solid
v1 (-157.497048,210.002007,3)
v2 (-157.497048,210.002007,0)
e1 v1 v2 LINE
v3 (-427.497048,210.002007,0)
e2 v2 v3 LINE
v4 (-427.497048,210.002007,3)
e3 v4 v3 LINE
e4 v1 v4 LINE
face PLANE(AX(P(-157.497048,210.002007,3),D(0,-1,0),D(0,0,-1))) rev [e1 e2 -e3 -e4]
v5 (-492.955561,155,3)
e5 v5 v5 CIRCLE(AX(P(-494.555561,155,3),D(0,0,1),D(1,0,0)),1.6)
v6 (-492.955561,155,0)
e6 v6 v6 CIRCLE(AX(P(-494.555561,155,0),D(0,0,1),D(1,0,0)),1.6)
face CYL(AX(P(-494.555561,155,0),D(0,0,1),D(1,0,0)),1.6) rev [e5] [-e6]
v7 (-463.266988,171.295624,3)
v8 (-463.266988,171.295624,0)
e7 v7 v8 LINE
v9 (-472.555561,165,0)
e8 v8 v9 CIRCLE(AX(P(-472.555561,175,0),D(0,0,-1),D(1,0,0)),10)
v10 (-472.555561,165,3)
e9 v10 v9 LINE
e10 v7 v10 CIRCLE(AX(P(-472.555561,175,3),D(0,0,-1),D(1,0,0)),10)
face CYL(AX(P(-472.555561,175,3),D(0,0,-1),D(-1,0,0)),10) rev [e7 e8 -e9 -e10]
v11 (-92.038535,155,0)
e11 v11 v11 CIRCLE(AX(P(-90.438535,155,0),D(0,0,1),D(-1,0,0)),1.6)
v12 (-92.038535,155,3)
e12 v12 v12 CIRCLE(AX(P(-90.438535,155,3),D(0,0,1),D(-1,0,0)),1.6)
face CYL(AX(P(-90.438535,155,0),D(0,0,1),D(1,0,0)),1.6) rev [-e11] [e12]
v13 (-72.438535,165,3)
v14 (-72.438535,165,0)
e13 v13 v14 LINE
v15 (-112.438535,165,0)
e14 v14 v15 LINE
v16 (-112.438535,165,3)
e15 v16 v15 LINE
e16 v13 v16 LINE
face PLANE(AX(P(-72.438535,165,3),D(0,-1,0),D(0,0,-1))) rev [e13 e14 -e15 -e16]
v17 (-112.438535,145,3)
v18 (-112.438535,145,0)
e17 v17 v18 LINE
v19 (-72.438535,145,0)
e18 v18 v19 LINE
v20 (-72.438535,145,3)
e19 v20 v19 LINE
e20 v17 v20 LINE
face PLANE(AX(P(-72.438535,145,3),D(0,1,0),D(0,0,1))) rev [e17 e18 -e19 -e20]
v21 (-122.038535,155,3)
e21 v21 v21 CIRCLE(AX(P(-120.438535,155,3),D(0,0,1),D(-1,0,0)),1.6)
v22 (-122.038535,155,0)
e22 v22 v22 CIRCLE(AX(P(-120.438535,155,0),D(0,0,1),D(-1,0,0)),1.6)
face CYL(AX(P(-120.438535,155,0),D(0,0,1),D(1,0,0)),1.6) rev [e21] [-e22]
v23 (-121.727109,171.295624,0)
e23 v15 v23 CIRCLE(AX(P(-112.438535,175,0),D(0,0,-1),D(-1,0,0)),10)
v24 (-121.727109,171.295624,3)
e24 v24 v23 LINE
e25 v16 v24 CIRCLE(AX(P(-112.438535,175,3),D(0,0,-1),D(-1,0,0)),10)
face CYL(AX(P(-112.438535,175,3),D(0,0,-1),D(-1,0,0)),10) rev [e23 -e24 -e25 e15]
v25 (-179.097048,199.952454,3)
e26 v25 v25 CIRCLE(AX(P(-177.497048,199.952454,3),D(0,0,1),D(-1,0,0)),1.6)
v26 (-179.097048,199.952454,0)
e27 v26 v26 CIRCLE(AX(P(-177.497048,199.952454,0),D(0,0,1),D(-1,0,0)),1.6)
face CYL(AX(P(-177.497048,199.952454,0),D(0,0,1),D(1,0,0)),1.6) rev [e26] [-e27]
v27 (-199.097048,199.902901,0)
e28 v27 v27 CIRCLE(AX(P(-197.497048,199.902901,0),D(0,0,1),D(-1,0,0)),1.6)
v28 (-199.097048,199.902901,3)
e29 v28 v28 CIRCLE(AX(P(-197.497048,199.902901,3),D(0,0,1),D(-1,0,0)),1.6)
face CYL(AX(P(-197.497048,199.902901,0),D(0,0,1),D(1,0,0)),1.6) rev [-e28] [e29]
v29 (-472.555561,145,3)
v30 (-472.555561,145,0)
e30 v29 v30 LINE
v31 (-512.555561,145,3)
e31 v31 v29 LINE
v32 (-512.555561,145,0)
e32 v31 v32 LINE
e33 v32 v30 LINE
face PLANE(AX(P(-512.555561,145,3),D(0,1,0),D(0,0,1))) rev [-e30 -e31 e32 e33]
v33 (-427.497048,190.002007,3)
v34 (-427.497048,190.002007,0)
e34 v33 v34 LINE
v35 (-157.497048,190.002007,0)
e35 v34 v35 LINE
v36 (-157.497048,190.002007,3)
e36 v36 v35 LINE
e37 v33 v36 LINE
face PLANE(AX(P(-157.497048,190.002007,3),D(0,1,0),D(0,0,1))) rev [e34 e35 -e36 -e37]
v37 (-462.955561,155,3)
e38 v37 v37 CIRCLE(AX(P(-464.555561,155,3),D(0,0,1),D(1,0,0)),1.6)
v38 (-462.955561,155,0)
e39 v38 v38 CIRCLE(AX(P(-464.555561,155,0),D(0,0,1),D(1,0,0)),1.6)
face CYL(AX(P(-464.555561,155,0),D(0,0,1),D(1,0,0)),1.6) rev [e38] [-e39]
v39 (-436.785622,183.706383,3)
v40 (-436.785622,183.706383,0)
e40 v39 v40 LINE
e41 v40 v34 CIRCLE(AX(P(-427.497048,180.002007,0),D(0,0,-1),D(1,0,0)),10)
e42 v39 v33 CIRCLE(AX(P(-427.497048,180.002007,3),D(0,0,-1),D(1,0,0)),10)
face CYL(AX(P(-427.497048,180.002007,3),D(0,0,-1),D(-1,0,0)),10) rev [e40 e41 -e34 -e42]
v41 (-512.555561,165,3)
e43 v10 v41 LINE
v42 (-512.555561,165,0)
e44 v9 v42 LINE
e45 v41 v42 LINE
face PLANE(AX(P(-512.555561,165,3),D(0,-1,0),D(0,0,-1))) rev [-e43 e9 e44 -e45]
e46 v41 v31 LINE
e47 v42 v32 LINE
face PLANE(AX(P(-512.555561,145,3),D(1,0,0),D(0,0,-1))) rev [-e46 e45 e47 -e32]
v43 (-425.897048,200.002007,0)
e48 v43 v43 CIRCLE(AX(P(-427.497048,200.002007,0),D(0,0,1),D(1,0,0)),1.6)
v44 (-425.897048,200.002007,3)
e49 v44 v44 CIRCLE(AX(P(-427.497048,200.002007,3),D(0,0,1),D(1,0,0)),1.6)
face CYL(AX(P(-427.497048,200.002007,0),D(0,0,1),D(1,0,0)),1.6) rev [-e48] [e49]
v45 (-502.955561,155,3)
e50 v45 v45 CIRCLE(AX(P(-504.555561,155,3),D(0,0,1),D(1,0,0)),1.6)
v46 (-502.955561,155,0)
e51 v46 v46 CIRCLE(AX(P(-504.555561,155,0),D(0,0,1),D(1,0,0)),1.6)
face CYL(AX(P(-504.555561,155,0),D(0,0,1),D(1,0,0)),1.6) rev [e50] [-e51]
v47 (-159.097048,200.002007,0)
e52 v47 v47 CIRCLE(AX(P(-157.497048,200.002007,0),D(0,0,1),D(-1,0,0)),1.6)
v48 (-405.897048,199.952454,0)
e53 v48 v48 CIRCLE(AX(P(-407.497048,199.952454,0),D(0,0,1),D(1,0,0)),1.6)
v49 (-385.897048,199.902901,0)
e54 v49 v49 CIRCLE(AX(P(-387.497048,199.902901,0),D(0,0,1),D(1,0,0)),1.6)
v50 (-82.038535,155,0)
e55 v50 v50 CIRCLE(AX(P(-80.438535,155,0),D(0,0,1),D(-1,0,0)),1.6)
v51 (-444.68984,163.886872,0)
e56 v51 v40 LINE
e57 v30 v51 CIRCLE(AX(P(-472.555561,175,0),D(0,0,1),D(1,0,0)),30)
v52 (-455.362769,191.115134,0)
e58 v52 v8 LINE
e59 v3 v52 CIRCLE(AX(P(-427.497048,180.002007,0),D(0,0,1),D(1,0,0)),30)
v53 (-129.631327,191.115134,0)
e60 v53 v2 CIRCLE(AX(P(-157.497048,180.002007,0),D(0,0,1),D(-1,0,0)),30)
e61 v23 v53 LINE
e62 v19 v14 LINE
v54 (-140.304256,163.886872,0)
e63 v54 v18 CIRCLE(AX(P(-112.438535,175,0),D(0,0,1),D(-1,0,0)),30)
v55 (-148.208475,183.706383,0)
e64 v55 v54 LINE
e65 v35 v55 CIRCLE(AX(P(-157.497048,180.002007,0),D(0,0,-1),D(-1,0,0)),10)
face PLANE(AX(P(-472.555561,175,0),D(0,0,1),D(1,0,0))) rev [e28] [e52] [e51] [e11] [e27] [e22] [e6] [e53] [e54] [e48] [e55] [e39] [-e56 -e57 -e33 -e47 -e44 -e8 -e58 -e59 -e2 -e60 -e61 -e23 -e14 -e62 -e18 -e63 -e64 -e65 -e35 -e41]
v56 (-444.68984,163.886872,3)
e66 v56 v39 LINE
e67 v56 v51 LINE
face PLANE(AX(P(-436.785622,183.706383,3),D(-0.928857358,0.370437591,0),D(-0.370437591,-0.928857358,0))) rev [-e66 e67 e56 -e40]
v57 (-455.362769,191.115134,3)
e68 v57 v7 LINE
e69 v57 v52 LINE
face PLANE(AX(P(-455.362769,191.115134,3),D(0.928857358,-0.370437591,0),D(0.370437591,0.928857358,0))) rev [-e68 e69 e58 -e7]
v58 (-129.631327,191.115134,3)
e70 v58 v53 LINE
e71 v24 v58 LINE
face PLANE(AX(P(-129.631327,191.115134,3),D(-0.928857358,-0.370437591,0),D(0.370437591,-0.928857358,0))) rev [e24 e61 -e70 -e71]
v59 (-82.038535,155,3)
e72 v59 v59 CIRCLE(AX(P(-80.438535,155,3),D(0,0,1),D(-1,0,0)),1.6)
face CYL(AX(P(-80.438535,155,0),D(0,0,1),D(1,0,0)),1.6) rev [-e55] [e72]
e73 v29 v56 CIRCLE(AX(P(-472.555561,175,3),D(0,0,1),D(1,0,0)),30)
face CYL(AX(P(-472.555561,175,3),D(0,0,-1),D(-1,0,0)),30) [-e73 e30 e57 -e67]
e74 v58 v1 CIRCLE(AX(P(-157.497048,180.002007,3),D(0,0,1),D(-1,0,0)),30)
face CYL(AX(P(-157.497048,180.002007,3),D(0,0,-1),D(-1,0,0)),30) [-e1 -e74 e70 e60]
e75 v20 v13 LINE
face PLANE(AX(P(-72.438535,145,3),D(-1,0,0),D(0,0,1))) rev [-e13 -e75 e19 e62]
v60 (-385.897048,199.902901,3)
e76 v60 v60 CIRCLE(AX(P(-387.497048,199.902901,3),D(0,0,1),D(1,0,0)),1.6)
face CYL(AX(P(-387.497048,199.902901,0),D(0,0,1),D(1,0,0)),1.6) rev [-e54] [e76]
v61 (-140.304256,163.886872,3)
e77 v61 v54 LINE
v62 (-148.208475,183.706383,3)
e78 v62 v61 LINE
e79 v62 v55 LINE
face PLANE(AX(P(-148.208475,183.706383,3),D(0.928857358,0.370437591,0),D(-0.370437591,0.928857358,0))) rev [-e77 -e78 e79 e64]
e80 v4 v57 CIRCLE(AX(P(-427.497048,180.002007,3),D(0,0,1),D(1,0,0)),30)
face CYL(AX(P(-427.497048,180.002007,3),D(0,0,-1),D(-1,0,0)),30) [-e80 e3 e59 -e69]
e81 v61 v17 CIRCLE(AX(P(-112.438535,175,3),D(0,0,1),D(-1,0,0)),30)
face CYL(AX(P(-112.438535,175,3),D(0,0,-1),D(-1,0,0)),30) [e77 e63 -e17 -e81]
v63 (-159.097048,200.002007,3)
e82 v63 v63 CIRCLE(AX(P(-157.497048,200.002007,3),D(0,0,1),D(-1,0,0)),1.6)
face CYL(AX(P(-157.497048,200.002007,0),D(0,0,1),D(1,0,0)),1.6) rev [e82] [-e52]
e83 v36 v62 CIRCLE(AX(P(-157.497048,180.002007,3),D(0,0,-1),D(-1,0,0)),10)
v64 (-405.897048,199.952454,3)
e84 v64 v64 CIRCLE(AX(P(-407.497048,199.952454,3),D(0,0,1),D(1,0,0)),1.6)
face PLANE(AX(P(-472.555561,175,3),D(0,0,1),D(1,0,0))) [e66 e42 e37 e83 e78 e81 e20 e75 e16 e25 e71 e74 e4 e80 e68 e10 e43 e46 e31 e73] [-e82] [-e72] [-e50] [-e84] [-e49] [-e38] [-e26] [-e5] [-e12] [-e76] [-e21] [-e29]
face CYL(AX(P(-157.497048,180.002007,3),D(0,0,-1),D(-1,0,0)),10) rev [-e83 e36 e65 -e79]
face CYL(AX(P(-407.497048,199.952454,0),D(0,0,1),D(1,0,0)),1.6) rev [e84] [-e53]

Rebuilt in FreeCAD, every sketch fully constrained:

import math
import FreeCAD as App
import Part
import Sketcher

doc = App.newDocument("Part")
body = doc.addObject("PartDesign::Body", "Body")

# Sketch on XY plane
sketch1 = body.newObject("Sketcher::SketchObject", "Sketch")
sketch1.AttachmentSupport = (doc.getObject("XY_Plane"), [""])
sketch1.MapMode = "FlatFace"
sketch1.addGeometry([
    Part.LineSegment(App.Vector(-513, 145, 0), App.Vector(-473, 145, 0)),  # 0
    Part.ArcOfCircle(Part.Circle(App.Vector(-473, 175, 0), App.Vector(0, 0, 1), 30), math.radians(-90), math.radians(-22)),  # 1
    Part.LineSegment(App.Vector(-445, 164, 0), App.Vector(-437, 184, 0)),  # 2
    Part.ArcOfCircle(Part.Circle(App.Vector(-427, 180, 0), App.Vector(0, 0, 1), 10), math.radians(90), math.radians(158)),  # 3
    Part.LineSegment(App.Vector(-427, 190, 0), App.Vector(-157, 190, 0)),  # 4
    Part.ArcOfCircle(Part.Circle(App.Vector(-157, 180, 0), App.Vector(0, 0, 1), 10), math.radians(22), math.radians(90)),  # 5
    Part.LineSegment(App.Vector(-148, 184, 0), App.Vector(-140, 164, 0)),  # 6
    Part.ArcOfCircle(Part.Circle(App.Vector(-112, 175, 0), App.Vector(0, 0, 1), 30), math.radians(-158), math.radians(-90)),  # 7
    Part.LineSegment(App.Vector(-112, 145, 0), App.Vector(-72, 145, 0)),  # 8
    Part.LineSegment(App.Vector(-72, 145, 0), App.Vector(-72, 165, 0)),  # 9
    Part.LineSegment(App.Vector(-72, 165, 0), App.Vector(-112, 165, 0)),  # 10
    Part.ArcOfCircle(Part.Circle(App.Vector(-112, 175, 0), App.Vector(0, 0, 1), 10), math.radians(-158), math.radians(-90)),  # 11
    Part.LineSegment(App.Vector(-122, 171, 0), App.Vector(-130, 191, 0)),  # 12
    Part.ArcOfCircle(Part.Circle(App.Vector(-157, 180, 0), App.Vector(0, 0, 1), 30), math.radians(22), math.radians(90)),  # 13
    Part.LineSegment(App.Vector(-157, 210, 0), App.Vector(-427, 210, 0)),  # 14
    Part.ArcOfCircle(Part.Circle(App.Vector(-427, 180, 0), App.Vector(0, 0, 1), 30), math.radians(90), math.radians(158)),  # 15
    Part.LineSegment(App.Vector(-455, 191, 0), App.Vector(-463, 171, 0)),  # 16
    Part.ArcOfCircle(Part.Circle(App.Vector(-473, 175, 0), App.Vector(0, 0, 1), 10), math.radians(-90), math.radians(-22)),  # 17
    Part.LineSegment(App.Vector(-473, 165, 0), App.Vector(-513, 165, 0)),  # 18
    Part.LineSegment(App.Vector(-513, 165, 0), App.Vector(-513, 145, 0)),  # 19
], False)
sketch1.addConstraint([
    Sketcher.Constraint("Tangent", 0, 2, 1, 1),
    Sketcher.Constraint("Tangent", 1, 2, 2, 1),
    Sketcher.Constraint("Tangent", 2, 2, 3, 2),
    Sketcher.Constraint("Tangent", 3, 1, 4, 1),
    Sketcher.Constraint("Tangent", 4, 2, 5, 2),
    Sketcher.Constraint("Tangent", 5, 1, 6, 1),
    Sketcher.Constraint("Tangent", 6, 2, 7, 1),
    Sketcher.Constraint("Tangent", 7, 2, 8, 1),
    Sketcher.Constraint("Coincident", 8, 2, 9, 1),
    Sketcher.Constraint("Coincident", 9, 2, 10, 1),
    Sketcher.Constraint("Tangent", 10, 2, 11, 2),
    Sketcher.Constraint("Tangent", 11, 1, 12, 1),
    Sketcher.Constraint("Tangent", 12, 2, 13, 1),
    Sketcher.Constraint("Tangent", 13, 2, 14, 1),
    Sketcher.Constraint("Tangent", 14, 2, 15, 1),
    Sketcher.Constraint("Tangent", 15, 2, 16, 1),
    Sketcher.Constraint("Tangent", 16, 2, 17, 2),
    Sketcher.Constraint("Tangent", 17, 1, 18, 1),
    Sketcher.Constraint("Coincident", 18, 2, 19, 1),
    Sketcher.Constraint("Coincident", 19, 2, 0, 1),
    Sketcher.Constraint("Horizontal", 0),
    Sketcher.Constraint("Horizontal", 4),
    Sketcher.Constraint("Horizontal", 8),
    Sketcher.Constraint("Vertical", 9),
    Sketcher.Constraint("Horizontal", 10),
    Sketcher.Constraint("Horizontal", 14),
    Sketcher.Constraint("Horizontal", 18),
    Sketcher.Constraint("Vertical", 19),
    Sketcher.Constraint("Coincident", 11, 3, 7, 3),
    Sketcher.Constraint("Coincident", 13, 3, 5, 3),
    Sketcher.Constraint("Coincident", 15, 3, 3, 3),
    Sketcher.Constraint("Coincident", 17, 3, 1, 3),
    Sketcher.Constraint("Equal", 3, 5),
    Sketcher.Constraint("Equal", 1, 7),
    Sketcher.Constraint("Equal", 5, 11),
    Sketcher.Constraint("Equal", 7, 13),
    Sketcher.Constraint("Equal", 11, 17),
    Sketcher.Constraint("Horizontal", 1, 3, 7, 3),
    Sketcher.Constraint("Horizontal", 2, 2, 5, 1),
    Sketcher.Constraint("Equal", 0, 8),
    Sketcher.Constraint("Radius", 1, 30.0),
    Sketcher.Constraint("Radius", 3, 10.0),
    Sketcher.Constraint("DistanceX", 0, 1, 0, 2, 40.0),
    Sketcher.Constraint("DistanceX", 4, 1, 4, 2, 270.0),
    Sketcher.Constraint("DistanceY", -1, 1, 1, 3, 175.0),
    Sketcher.Constraint("DistanceX", 1, 3, -1, 1, 472.555561),
    Sketcher.Constraint("DistanceX", 3, 3, -1, 1, 427.497048),
    Sketcher.Constraint("DistanceX", 1, 2, -1, 1, 444.68984),
])
pad1 = body.newObject("PartDesign::Pad", "Pad")
pad1.Profile = sketch1
pad1.Length = 3

# Sketch on XY plane
sketch2 = body.newObject("Sketcher::SketchObject", "Sketch001")
sketch2.AttachmentSupport = (doc.getObject("XY_Plane"), [""])
sketch2.MapMode = "FlatFace"
sketch2.AttachmentOffset = App.Placement(App.Vector(0, 0, 3), App.Rotation())
sketch2.addGeometry([
    Part.Circle(App.Vector(-494.6, 155, 0), App.Vector(0, 0, 1), 1.6),  # 0
    Part.Circle(App.Vector(-464.6, 155, 0), App.Vector(0, 0, 1), 1.6),  # 1
    Part.Circle(App.Vector(-427.5, 200, 0), App.Vector(0, 0, 1), 1.6),  # 2
    Part.Circle(App.Vector(-407.5, 200, 0), App.Vector(0, 0, 1), 1.6),  # 3
    Part.Circle(App.Vector(-387.5, 199.9, 0), App.Vector(0, 0, 1), 1.6),  # 4
    Part.Circle(App.Vector(-504.6, 155, 0), App.Vector(0, 0, 1), 1.6),  # 5
    Part.Circle(App.Vector(-80.4, 155, 0), App.Vector(0, 0, 1), 1.6),  # 6
    Part.Circle(App.Vector(-197.5, 199.9, 0), App.Vector(0, 0, 1), 1.6),  # 7
    Part.Circle(App.Vector(-177.5, 200, 0), App.Vector(0, 0, 1), 1.6),  # 8
    Part.Circle(App.Vector(-157.5, 200, 0), App.Vector(0, 0, 1), 1.6),  # 9
    Part.Circle(App.Vector(-120.4, 155, 0), App.Vector(0, 0, 1), 1.6),  # 10
    Part.Circle(App.Vector(-90.4, 155, 0), App.Vector(0, 0, 1), 1.6),  # 11
], False)
sketch2.addConstraint([
    Sketcher.Constraint("Equal", 0, 1),
    Sketcher.Constraint("Equal", 1, 2),
    Sketcher.Constraint("Equal", 2, 3),
    Sketcher.Constraint("Equal", 3, 4),
    Sketcher.Constraint("Equal", 4, 5),
    Sketcher.Constraint("Equal", 5, 6),
    Sketcher.Constraint("Equal", 6, 7),
    Sketcher.Constraint("Equal", 7, 8),
    Sketcher.Constraint("Equal", 8, 9),
    Sketcher.Constraint("Equal", 9, 10),
    Sketcher.Constraint("Equal", 10, 11),
    Sketcher.Constraint("Horizontal", 0, 3, 1, 3),
    Sketcher.Constraint("Horizontal", 1, 3, 5, 3),
    Sketcher.Constraint("Horizontal", 5, 3, 6, 3),
    Sketcher.Constraint("Horizontal", 4, 3, 7, 3),
    Sketcher.Constraint("Horizontal", 3, 3, 8, 3),
    Sketcher.Constraint("Horizontal", 2, 3, 9, 3),
    Sketcher.Constraint("Horizontal", 6, 3, 10, 3),
    Sketcher.Constraint("Horizontal", 10, 3, 11, 3),
    Sketcher.Constraint("Diameter", 0, 3.2),
    Sketcher.Constraint("DistanceY", -1, 1, 0, 3, 155.0),
    Sketcher.Constraint("DistanceX", 0, 3, 1, 3, 30.0),
    Sketcher.Constraint("DistanceX", 2, 3, 3, 3, 20.0),
    Sketcher.Constraint("DistanceX", 3, 3, 4, 3, 20.0),
    Sketcher.Constraint("DistanceX", 5, 3, 0, 3, 10.0),
    Sketcher.Constraint("DistanceX", 4, 3, 7, 3, 190.0),
    Sketcher.Constraint("DistanceX", 7, 3, 8, 3, 20.0),
    Sketcher.Constraint("DistanceX", 8, 3, 9, 3, 20.0),
    Sketcher.Constraint("DistanceX", 10, 3, 6, 3, 40.0),
    Sketcher.Constraint("DistanceX", 11, 3, 6, 3, 10.0),
    Sketcher.Constraint("DistanceY", -1, 1, 4, 3, 199.902901),
    Sketcher.Constraint("DistanceX", 0, 3, -1, 1, 494.555561),
    Sketcher.Constraint("DistanceX", 2, 3, -1, 1, 427.497048),
    Sketcher.Constraint("DistanceY", -1, 1, 2, 3, 200.002007),
    Sketcher.Constraint("DistanceY", -1, 1, 3, 3, 199.952454),
    Sketcher.Constraint("DistanceX", 6, 3, -1, 1, 80.438535),
])
pocket1 = body.newObject("PartDesign::Pocket", "Pocket")
pocket1.Profile = sketch2
pocket1.Length = 3

doc.recompute()
